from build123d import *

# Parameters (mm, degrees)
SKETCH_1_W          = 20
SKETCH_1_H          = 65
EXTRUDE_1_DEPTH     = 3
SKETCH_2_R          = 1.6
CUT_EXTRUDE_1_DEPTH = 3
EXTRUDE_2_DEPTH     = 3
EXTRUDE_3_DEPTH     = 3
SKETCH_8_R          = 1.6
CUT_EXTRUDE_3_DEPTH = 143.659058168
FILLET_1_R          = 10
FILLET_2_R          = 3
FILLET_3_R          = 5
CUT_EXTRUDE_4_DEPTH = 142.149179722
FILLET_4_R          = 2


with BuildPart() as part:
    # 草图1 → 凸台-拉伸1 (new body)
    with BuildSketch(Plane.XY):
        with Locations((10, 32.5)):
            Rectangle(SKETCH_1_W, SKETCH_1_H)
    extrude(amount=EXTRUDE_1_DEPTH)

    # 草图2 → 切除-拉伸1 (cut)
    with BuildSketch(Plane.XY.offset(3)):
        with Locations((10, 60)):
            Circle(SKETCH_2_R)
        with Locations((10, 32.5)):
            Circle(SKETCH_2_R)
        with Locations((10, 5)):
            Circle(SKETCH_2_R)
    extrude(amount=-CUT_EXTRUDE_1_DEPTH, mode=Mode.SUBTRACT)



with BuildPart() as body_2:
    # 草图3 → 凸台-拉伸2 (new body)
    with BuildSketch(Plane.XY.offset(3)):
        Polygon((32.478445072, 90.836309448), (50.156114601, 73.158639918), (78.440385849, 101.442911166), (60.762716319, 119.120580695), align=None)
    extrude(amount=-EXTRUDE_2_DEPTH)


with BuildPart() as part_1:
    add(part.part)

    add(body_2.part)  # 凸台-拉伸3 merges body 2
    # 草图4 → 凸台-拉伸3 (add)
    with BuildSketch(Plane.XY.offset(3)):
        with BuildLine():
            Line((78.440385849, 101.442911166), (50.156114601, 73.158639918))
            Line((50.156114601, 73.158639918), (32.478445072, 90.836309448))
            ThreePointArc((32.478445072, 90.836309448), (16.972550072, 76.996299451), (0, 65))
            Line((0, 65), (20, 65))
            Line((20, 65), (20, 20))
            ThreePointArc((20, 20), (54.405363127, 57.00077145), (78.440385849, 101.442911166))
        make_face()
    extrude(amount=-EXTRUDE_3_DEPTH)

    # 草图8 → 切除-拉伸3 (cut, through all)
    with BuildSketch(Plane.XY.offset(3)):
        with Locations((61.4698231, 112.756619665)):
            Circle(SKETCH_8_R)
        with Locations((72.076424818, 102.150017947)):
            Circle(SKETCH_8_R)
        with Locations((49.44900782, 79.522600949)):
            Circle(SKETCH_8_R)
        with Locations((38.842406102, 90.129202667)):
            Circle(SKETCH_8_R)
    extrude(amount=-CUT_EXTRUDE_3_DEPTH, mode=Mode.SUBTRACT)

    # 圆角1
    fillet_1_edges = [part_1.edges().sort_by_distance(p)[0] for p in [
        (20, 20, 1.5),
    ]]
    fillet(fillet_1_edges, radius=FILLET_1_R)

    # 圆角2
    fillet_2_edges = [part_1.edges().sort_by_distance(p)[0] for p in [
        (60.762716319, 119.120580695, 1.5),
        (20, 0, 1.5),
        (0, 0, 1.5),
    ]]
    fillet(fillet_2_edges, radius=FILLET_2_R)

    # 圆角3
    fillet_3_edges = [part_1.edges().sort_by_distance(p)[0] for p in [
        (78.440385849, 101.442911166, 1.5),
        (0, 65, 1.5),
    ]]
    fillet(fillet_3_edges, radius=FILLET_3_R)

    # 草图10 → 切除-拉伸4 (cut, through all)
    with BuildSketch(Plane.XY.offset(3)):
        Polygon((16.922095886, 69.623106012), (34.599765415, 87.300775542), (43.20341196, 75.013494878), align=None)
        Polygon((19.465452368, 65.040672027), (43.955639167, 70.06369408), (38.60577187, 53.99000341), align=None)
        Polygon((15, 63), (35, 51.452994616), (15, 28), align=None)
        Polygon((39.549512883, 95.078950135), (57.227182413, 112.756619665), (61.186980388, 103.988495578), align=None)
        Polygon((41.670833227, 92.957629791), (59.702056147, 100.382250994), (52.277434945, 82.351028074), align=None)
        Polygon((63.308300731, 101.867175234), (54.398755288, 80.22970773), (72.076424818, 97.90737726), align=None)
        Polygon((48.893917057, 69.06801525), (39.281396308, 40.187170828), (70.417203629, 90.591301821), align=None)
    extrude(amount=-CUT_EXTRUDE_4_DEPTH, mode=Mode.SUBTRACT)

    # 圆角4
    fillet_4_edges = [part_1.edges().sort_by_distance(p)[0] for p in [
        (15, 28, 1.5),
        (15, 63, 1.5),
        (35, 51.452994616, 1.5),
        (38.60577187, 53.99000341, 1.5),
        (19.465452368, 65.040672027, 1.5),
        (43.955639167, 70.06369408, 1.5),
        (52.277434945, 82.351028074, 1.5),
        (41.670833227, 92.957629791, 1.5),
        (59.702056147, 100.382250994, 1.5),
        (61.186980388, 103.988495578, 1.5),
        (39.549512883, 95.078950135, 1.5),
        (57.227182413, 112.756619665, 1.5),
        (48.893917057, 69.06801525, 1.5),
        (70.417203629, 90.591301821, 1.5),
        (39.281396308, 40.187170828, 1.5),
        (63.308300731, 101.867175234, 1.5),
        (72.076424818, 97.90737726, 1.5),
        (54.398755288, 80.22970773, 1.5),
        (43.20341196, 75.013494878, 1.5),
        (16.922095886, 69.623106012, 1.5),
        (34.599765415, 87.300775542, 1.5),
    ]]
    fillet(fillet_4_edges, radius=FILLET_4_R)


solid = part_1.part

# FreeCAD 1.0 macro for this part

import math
import FreeCAD as App
import Part
import Sketcher
from FreeCAD import Vector
Q = App.Units.Quantity


def edges_at(feature, points):
    """Names of the edges that pass closest to the given points."""
    edges = feature.Shape.Edges
    near = lambda p: min(range(len(edges)), key=lambda i: edges[i].distToShape(Part.Vertex(*p))[0])
    return sorted({f"Edge{near(p) + 1}" for p in points})


def add_polygon(sketch, points):
    """Adds a closed chain of lines whose ends are joined by coincident constraints."""
    first, n = sketch.GeometryCount, len(points)
    for a, b in zip(points, points[1:] + points[:1]):
        sketch.addGeometry(Part.LineSegment(App.Vector(*a, 0), App.Vector(*b, 0)), False)
    for i in range(n):
        sketch.addConstraint(Sketcher.Constraint("Coincident", first + i, 2, first + (i + 1) % n, 1))

doc = App.newDocument("Part")
body = doc.addObject("PartDesign::Body", "Body")

sketch1 = body.newObject("Sketcher::SketchObject", "Sketch")
sketch1.AttachmentSupport = (doc.getObject("XY_Plane"), [""])
sketch1.MapMode = "FlatFace"
add_polygon(sketch1, [(0, 65), (0, 0), (20, 0), (20, 65)])
sketch1.addConstraint([
    Sketcher.Constraint("Vertical", 0),
    Sketcher.Constraint("Horizontal", 1),
    Sketcher.Constraint("Vertical", 2),
    Sketcher.Constraint("Horizontal", 3),
    Sketcher.Constraint("Coincident", 0, 2, -1, 1),
    Sketcher.Constraint("DistanceX", 1, 1, 1, 2, 20.0),
    Sketcher.Constraint("DistanceY", 0, 2, 0, 1, 65.0),
])
pad1 = body.newObject("PartDesign::Pad", "Pad")
pad1.Profile = sketch1
pad1.Length = 3

sketch2 = body.newObject("Sketcher::SketchObject", "Sketch001")
sketch2.AttachmentSupport = (doc.getObject("XY_Plane"), [""])
sketch2.MapMode = "FlatFace"
sketch2.AttachmentOffset = App.Placement(Vector(0, 0, 3), App.Rotation())
sketch2.addGeometry([
    Part.Circle(Vector(10, 60, 0), Vector(0, 0, 1), 1.6),
    Part.Circle(Vector(10, 32.5, 0), Vector(0, 0, 1), 1.6),
    Part.Circle(Vector(10, 5, 0), Vector(0, 0, 1), 1.6),
], False)
sketch2.addConstraint([
    Sketcher.Constraint("Equal", 0, 1),
    Sketcher.Constraint("Equal", 1, 2),
    Sketcher.Constraint("Vertical", 0, 3, 1, 3),
    Sketcher.Constraint("Vertical", 1, 3, 2, 3),
    Sketcher.Constraint("Diameter", 0, 3.2),
    Sketcher.Constraint("DistanceX", -1, 1, 0, 3, 10.0),
    Sketcher.Constraint("DistanceY", -1, 1, 0, 3, 60.0),
    Sketcher.Constraint("DistanceY", -1, 1, 2, 3, 5.0),
    Sketcher.Constraint("DistanceY", -1, 1, 1, 3, 32.5),
])
pocket1 = body.newObject("PartDesign::Pocket", "Pocket")
pocket1.Profile = sketch2
pocket1.Length = 3
body2 = doc.addObject("PartDesign::Body", "Body001")

sketch3 = body2.newObject("Sketcher::SketchObject", "Sketch002")
sketch3.AttachmentSupport = (doc.getObject("XY_Plane001"), [""])
sketch3.MapMode = "FlatFace"
sketch3.AttachmentOffset = App.Placement(Vector(0, 0, 3), App.Rotation())
add_polygon(sketch3, [(32, 91), (50, 73), (78, 101), (61, 119)])
sketch3.addConstraint([
    Sketcher.Constraint("Perpendicular", 0, 1),
    Sketcher.Constraint("Perpendicular", 1, 2),
    Sketcher.Constraint("Perpendicular", 2, 3),
    Sketcher.Constraint("Angle", 0, Q("-45 deg")),
    Sketcher.Constraint("Distance", 0, 25.0),
    Sketcher.Constraint("Distance", 1, 40.0),
    Sketcher.Constraint("DistanceY", -1, 1, 0, 2, 73.15864),
    Sketcher.Constraint("DistanceX", -1, 1, 0, 2, 50.156115),
])
pad2 = body2.newObject("PartDesign::Pad", "Pad001")
pad2.Profile = sketch3
pad2.Length = 3
pad2.Reversed = True
body.AllowCompound = True
doc.recompute()

boolean = body.newObject("PartDesign::Boolean", "Boolean")
boolean.Type = "Fuse"
boolean.addObjects([body2])

sketch4 = body.newObject("Sketcher::SketchObject", "Sketch003")
sketch4.AttachmentSupport = (doc.getObject("XY_Plane"), [""])
sketch4.MapMode = "FlatFace"
sketch4.AttachmentOffset = App.Placement(Vector(0, 0, 3), App.Rotation())
sketch4.addGeometry([
    Part.LineSegment(Vector(78, 101, 0), Vector(50, 73, 0)),
    Part.LineSegment(Vector(50, 73, 0), Vector(32, 91, 0)),
    Part.ArcOfCircle(Part.Circle(Vector(-97, 220, 0), Vector(0, 0, 1), 183), math.radians(-58), math.radians(-45)),
    Part.LineSegment(Vector(0, 65, 0), Vector(20, 65, 0)),
    Part.LineSegment(Vector(20, 65, 0), Vector(20, 20, 0)),
    Part.ArcOfCircle(Part.Circle(Vector(-108, 174, 0), Vector(0, 0, 1), 200), math.radians(-50), math.radians(-21)),
], False)
sketch4.addConstraint([
    Sketcher.Constraint("Coincident", 0, 2, 1, 1),
    Sketcher.Constraint("Coincident", 1, 2, 2, 2),
    Sketcher.Constraint("Coincident", 2, 1, 3, 1),
    Sketcher.Constraint("Coincident", 3, 2, 4, 1),
    Sketcher.Constraint("Coincident", 4, 2, 5, 1),
    Sketcher.Constraint("Coincident", 5, 2, 0, 1),
    Sketcher.Constraint("Horizontal", 3),
    Sketcher.Constraint("Vertical", 4),
    Sketcher.Constraint("PointOnObject", 2, 1, -2),
    Sketcher.Constraint("Perpendicular", 0, 1),
    Sketcher.Constraint("Radius", 5, 200.0),
    Sketcher.Constraint("DistanceX", 3, 1, 3, 2, 20.0),
    Sketcher.Constraint("DistanceY", 4, 2, 4, 1, 45.0),
    Sketcher.Constraint("Angle", 0, Q("-135 deg")),
    Sketcher.Constraint("Distance", 0, 40.0),
    Sketcher.Constraint("Distance", 1, 25.0),
    Sketcher.Constraint("DistanceY", -1, 1, 2, 1, 65.0),
    Sketcher.Constraint("Radius", 2, 183.359018),
    Sketcher.Constraint("DistanceX", 2, 3, -1, 1, 97.17596),
    Sketcher.Constraint("DistanceY", -1, 1, 5, 3, 173.600721),
])
pad3 = body.newObject("PartDesign::Pad", "Pad002")
pad3.Profile = sketch4
pad3.Length = 3
pad3.Reversed = True

sketch5 = body.newObject("Sketcher::SketchObject", "Sketch004")
sketch5.AttachmentSupport = (doc.getObject("XY_Plane"), [""])
sketch5.MapMode = "FlatFace"
sketch5.AttachmentOffset = App.Placement(Vector(0, 0, 3), App.Rotation())
sketch5.addGeometry([
    Part.Circle(Vector(61.5, 112.8, 0), Vector(0, 0, 1), 1.6),
    Part.Circle(Vector(72.1, 102.2, 0), Vector(0, 0, 1), 1.6),
    Part.Circle(Vector(49.4, 79.5, 0), Vector(0, 0, 1), 1.6),
    Part.Circle(Vector(38.8, 90.1, 0), Vector(0, 0, 1), 1.6),
], False)
sketch5.addConstraint([
    Sketcher.Constraint("Equal", 0, 1),
    Sketcher.Constraint("Equal", 1, 2),
    Sketcher.Constraint("Equal", 2, 3),
    Sketcher.Constraint("Diameter", 0, 3.2),
    Sketcher.Constraint("DistanceY", -1, 1, 2, 3, 79.522601),
    Sketcher.Constraint("DistanceX", 0, 3, 1, 3, 10.606602),
    Sketcher.Constraint("DistanceY", 1, 3, 0, 3, 10.606602),
    Sketcher.Constraint("DistanceX", 3, 3, 2, 3, 10.606602),
    Sketcher.Constraint("DistanceY", 2, 3, 3, 3, 10.606602),
    Sketcher.Constraint("DistanceY", -1, 1, 0, 3, 112.75662),
    Sketcher.Constraint("DistanceX", 3, 3, 1, 3, 33.234019),
    Sketcher.Constraint("DistanceX", -1, 1, 0, 3, 61.469823),
])
pocket2 = body.newObject("PartDesign::Pocket", "Pocket001")
pocket2.Profile = sketch5
pocket2.Type = "ThroughAll"
doc.recompute()

fillet = body.newObject("PartDesign::Fillet", "Fillet")
fillet.Base = (pocket2, edges_at(pocket2, [(20, 20, 1.5)]))
fillet.Radius = 10
doc.recompute()

fillet2 = body.newObject("PartDesign::Fillet", "Fillet001")
fillet2.Base = (fillet, edges_at(fillet, [(60.763, 119.121, 1.5), (20, 0, 1.5), (0, 0, 1.5)]))
fillet2.Radius = 3
doc.recompute()

fillet3 = body.newObject("PartDesign::Fillet", "Fillet002")
fillet3.Base = (fillet2, edges_at(fillet2, [(78.44, 101.443, 1.5), (0, 65, 1.5)]))
fillet3.Radius = 5

sketch6 = body.newObject("Sketcher::SketchObject", "Sketch005")
sketch6.AttachmentSupport = (doc.getObject("XY_Plane"), [""])
sketch6.MapMode = "FlatFace"
sketch6.AttachmentOffset = App.Placement(Vector(0, 0, 3), App.Rotation())
add_polygon(sketch6, [(35, 87), (17, 70), (43, 75)])
add_polygon(sketch6, [(44, 70), (19, 65), (39, 54)])
add_polygon(sketch6, [(35, 51), (15, 63), (15, 28)])
add_polygon(sketch6, [(57, 113), (40, 95), (61, 104)])
add_polygon(sketch6, [(60, 100), (42, 93), (52, 82)])
add_polygon(sketch6, [(63, 102), (54, 80), (72, 98)])
add_polygon(sketch6, [(49, 69), (39, 40), (70, 91)])
sketch6.addConstraint([
    Sketcher.Constraint("Vertical", 7),
    Sketcher.Constraint("Parallel", 1, 3),
    Sketcher.Constraint("Parallel", 4, 6),
    Sketcher.Constraint("Parallel", 0, 9),
    Sketcher.Constraint("Parallel", 10, 12),
    Sketcher.Constraint("Perpendicular", 9, 13),
    Sketcher.Constraint("Parallel", 14, 15),
    Sketcher.Constraint("Perpendicular", 13, 16),
    Sketcher.Constraint("Parallel", 5, 18),
    Sketcher.Constraint("Parallel", 16, 20),
    Sketcher.Constraint("Equal", 0, 3),
    Sketcher.Constraint("Equal", 3, 9),
    Sketcher.Constraint("Equal", 2, 13),
    Sketcher.Constraint("Equal", 12, 14),
    Sketcher.Constraint("Equal", 10, 15),
    Sketcher.Constraint("Equal", 9, 16),
    Sketcher.Constraint("Equal", 18, 20),
    Sketcher.Constraint("DistanceY", 7, 2, 7, 1, 35.0),
    Sketcher.Constraint("Angle", 0, Q("-135 deg")),
    Sketcher.Constraint("Angle", 2, Q("125 deg")),
    Sketcher.Constraint("Angle", 4, Q("-30 deg")),
    Sketcher.Constraint("Distance", 0, 25.0),
    Sketcher.Constraint("Distance", 2, 15.0),
    Sketcher.Constraint("DistanceX", -1, 1, 6, 2, 15.0),
    Sketcher.Constraint("DistanceY", -1, 1, 6, 2, 63.0),
    Sketcher.Constraint("DistanceX", -1, 1, 8, 2, 35.0),
    Sketcher.Constraint("Distance", 10, 23.4),
    Sketcher.Constraint("Distance", 12, 19.5),
    Sketcher.Constraint("DistanceY", 1, 2, 10, 2, 28.975001),
    Sketcher.Constraint("DistanceX", -1, 1, 17, 2, 63.308301),
    Sketcher.Constraint("DistanceY", -1, 1, 19, 2, 90.591302),
    Sketcher.Constraint("DistanceY", 5, 2, 1, 2, 4.949801),
    Sketcher.Constraint("DistanceY", 8, 2, 5, 2, 18.610699),
    Sketcher.Constraint("DistanceX", 9, 2, 1, 2, 3.653899),
    Sketcher.Constraint("DistanceY", 9, 2, 14, 2, 5.303301),
    Sketcher.Constraint("DistanceX", 15, 2, 14, 2, 5.303301),
    Sketcher.Constraint("DistanceY", 18, 2, 3, 2, 24.853501),
    Sketcher.Constraint("Distance", 5, 16.94062),
    Sketcher.Constraint("DistanceX", -1, 1, 1, 2, 43.203412),
    Sketcher.Constraint("DistanceX", -1, 1, 4, 2, 38.605772),
    Sketcher.Constraint("DistanceY", 15, 2, 13, 2, 2.12132),
    Sketcher.Constraint("DistanceX", 19, 2, 16, 2, 1.659221),
])
pocket3 = body.newObject("PartDesign::Pocket", "Pocket002")
pocket3.Profile = sketch6
pocket3.Type = "ThroughAll"
doc.recompute()

fillet4 = body.newObject("PartDesign::Fillet", "Fillet003")
fillet4.Base = (pocket3, edges_at(pocket3, [
    (15, 28, 1.5),
    (15, 63, 1.5),
    (35, 51.453, 1.5),
    (38.606, 53.99, 1.5),
    (19.465, 65.041, 1.5),
    (43.956, 70.064, 1.5),
    (52.277, 82.351, 1.5),
    (41.671, 92.958, 1.5),
    (59.702, 100.382, 1.5),
    (61.187, 103.988, 1.5),
    (39.55, 95.079, 1.5),
    (57.227, 112.757, 1.5),
    (48.894, 69.068, 1.5),
    (70.417, 90.591, 1.5),
    (39.281, 40.187, 1.5),
    (63.308, 101.867, 1.5),
    (72.076, 97.907, 1.5),
    (54.399, 80.23, 1.5),
    (43.203, 75.013, 1.5),
    (16.922, 69.623, 1.5),
    (34.6, 87.301, 1.5),
]))
fillet4.Radius = 2

doc.recompute()
